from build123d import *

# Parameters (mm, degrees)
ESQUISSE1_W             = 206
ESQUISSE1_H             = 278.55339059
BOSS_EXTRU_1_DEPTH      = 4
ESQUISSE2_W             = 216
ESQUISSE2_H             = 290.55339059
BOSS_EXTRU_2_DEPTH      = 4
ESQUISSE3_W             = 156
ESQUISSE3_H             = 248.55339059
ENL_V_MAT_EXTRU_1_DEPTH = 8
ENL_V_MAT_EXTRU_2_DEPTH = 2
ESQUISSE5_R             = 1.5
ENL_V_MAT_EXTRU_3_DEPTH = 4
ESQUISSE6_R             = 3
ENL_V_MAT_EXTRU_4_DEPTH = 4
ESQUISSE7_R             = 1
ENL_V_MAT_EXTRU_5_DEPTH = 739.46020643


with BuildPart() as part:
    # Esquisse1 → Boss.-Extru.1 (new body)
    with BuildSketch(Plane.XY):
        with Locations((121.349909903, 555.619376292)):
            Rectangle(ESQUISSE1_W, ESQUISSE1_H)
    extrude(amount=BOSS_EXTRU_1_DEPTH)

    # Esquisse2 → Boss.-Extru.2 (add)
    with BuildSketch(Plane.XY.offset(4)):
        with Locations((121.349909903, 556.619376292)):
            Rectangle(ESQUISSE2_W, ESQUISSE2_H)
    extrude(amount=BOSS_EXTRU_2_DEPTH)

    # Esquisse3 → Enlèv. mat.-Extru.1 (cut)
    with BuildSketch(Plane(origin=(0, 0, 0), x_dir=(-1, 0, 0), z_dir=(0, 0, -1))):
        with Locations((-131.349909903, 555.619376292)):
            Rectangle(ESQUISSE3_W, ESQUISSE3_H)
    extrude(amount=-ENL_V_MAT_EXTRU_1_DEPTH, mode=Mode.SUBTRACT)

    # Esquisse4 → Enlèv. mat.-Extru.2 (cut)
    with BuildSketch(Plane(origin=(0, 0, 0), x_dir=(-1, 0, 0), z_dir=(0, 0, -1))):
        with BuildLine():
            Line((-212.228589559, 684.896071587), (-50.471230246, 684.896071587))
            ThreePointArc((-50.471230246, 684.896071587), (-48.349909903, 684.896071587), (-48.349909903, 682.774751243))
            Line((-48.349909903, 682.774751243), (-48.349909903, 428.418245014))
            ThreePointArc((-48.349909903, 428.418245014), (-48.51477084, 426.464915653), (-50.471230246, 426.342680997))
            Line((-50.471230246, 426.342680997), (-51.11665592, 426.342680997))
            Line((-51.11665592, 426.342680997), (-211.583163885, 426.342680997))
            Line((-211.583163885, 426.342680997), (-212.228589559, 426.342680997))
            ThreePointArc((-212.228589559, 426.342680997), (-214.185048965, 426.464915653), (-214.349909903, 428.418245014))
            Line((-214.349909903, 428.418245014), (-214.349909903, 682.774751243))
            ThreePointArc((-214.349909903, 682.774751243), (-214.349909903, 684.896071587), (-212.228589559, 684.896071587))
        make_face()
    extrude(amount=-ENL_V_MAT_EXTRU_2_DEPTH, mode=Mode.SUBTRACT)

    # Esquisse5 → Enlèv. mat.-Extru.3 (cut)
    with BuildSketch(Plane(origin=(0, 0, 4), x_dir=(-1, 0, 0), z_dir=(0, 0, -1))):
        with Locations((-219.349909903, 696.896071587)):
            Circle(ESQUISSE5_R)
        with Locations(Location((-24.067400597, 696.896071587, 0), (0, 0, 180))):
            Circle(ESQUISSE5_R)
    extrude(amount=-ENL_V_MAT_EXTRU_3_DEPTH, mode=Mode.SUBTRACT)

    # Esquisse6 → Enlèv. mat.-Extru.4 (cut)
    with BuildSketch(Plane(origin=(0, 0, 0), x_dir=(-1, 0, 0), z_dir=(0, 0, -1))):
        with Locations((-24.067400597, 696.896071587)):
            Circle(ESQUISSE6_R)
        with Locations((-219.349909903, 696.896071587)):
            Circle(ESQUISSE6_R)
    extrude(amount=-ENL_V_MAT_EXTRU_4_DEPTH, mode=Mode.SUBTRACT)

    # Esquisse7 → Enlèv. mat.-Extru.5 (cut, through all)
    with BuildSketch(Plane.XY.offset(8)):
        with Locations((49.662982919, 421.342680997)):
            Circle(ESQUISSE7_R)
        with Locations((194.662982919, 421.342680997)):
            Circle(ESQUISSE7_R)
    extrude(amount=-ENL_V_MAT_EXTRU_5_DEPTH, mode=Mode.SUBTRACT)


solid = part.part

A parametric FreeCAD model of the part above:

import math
import FreeCAD as App
import Part
import Sketcher

V = App.Vector


def add_polygon(sketch, points):
    """Adds a closed chain of lines whose ends are joined by coincident constraints."""
    first, n = sketch.GeometryCount, len(points)
    for a, b in zip(points, points[1:] + points[:1]):
        sketch.addGeometry(Part.LineSegment(App.Vector(*a, 0), App.Vector(*b, 0)), False)
    for i in range(n):
        sketch.addConstraint(Sketcher.Constraint("Coincident", first + i, 2, first + (i + 1) % n, 1))

doc = App.newDocument("Part")
body = doc.addObject("PartDesign::Body", "Body")

# Sketch on XY plane
sketch1 = body.newObject("Sketcher::SketchObject", "Sketch")
sketch1.AttachmentSupport = (doc.getObject("XY_Plane"), [""])
sketch1.MapMode = "FlatFace"
add_polygon(sketch1, [(18, 695), (18, 416), (224, 416), (224, 695)])  # lines 0-3
sketch1.addConstraint(Sketcher.Constraint("Vertical", 0))
sketch1.addConstraint(Sketcher.Constraint("Horizontal", 1))
sketch1.addConstraint(Sketcher.Constraint("Vertical", 2))
sketch1.addConstraint(Sketcher.Constraint("Horizontal", 3))
sketch1.addConstraint(Sketcher.Constraint("DistanceX", 1, 1, 1, 2, 206.0))
sketch1.addConstraint(Sketcher.Constraint("DistanceY", 0, 2, 0, 1, 278.553391))
sketch1.addConstraint(Sketcher.Constraint("DistanceX", -1, 1, 0, 2, 18.34991))
sketch1.addConstraint(Sketcher.Constraint("DistanceY", -1, 1, 0, 2, 416.342681))
pad1 = body.newObject("PartDesign::Pad", "Pad")
pad1.Profile = sketch1
pad1.Length = 4

# Sketch on XY plane
sketch2 = body.newObject("Sketcher::SketchObject", "Sketch001")
sketch2.AttachmentSupport = (doc.getObject("XY_Plane"), [""])
sketch2.MapMode = "FlatFace"
sketch2.AttachmentOffset = App.Placement(V(0, 0, 4), App.Rotation())
add_polygon(sketch2, [(13, 702), (13, 411), (229, 411), (229, 702)])  # lines 0-3
sketch2.addConstraint(Sketcher.Constraint("Vertical", 0))
sketch2.addConstraint(Sketcher.Constraint("Horizontal", 1))
sketch2.addConstraint(Sketcher.Constraint("Vertical", 2))
sketch2.addConstraint(Sketcher.Constraint("Horizontal", 3))
sketch2.addConstraint(Sketcher.Constraint("DistanceX", 1, 1, 1, 2, 216.0))
sketch2.addConstraint(Sketcher.Constraint("DistanceY", 0, 2, 0, 1, 290.553391))
sketch2.addConstraint(Sketcher.Constraint("DistanceX", -1, 1, 0, 2, 13.34991))
sketch2.addConstraint(Sketcher.Constraint("DistanceY", -1, 1, 0, 2, 411.342681))
pad2 = body.newObject("PartDesign::Pad", "Pad001")
pad2.Profile = sketch2
pad2.Length = 4

# Sketch on XY plane
sketch3 = body.newObject("Sketcher::SketchObject", "Sketch002")
sketch3.AttachmentSupport = (doc.getObject("XY_Plane"), [""])
sketch3.MapMode = "FlatFace"
add_polygon(sketch3, [(209, 680), (209, 431), (53, 431), (53, 680)])  # lines 0-3
sketch3.addConstraint(Sketcher.Constraint("Vertical", 0))
sketch3.addConstraint(Sketcher.Constraint("Horizontal", 1))
sketch3.addConstraint(Sketcher.Constraint("Vertical", 2))
sketch3.addConstraint(Sketcher.Constraint("Horizontal", 3))
sketch3.addConstraint(Sketcher.Constraint("DistanceX", 1, 2, 1, 1, 156.0))
sketch3.addConstraint(Sketcher.Constraint("DistanceY", 0, 2, 0, 1, 248.553391))
sketch3.addConstraint(Sketcher.Constraint("DistanceX", -1, 1, 0, 2, 209.34991))
sketch3.addConstraint(Sketcher.Constraint("DistanceY", -1, 1, 0, 2, 431.342681))
pocket1 = body.newObject("PartDesign::Pocket", "Pocket")
pocket1.Profile = sketch3
pocket1.Length = 8
pocket1.Reversed = True

# Sketch on XY plane
sketch4 = body.newObject("Sketcher::SketchObject", "Sketch003")
sketch4.AttachmentSupport = (doc.getObject("XY_Plane"), [""])
sketch4.MapMode = "FlatFace"
sketch4.addGeometry(Part.LineSegment(V(50.5, 684.9, 0), V(212.2, 684.9, 0)), False)
sketch4.addGeometry(Part.ArcOfCircle(Part.Circle(V(213.3, 683.8, 0), V(0, 0, 1), 1.5), math.radians(-45), math.radians(135)), False)
sketch4.addGeometry(Part.LineSegment(V(214.3, 682.8, 0), V(214.3, 428.4, 0)), False)
sketch4.addGeometry(Part.ArcOfCircle(Part.Circle(V(213.1, 427.5, 0), V(0, 0, 1), 1.5), math.radians(-127), math.radians(36)), False)
sketch4.addGeometry(Part.LineSegment(V(212.2, 426.3, 0), V(50.5, 426.3, 0)), False)
sketch4.addGeometry(Part.ArcOfCircle(Part.Circle(V(49.6, 427.5, 0), V(0, 0, 1), 1.5), math.radians(144), math.radians(307)), False)
sketch4.addGeometry(Part.LineSegment(V(48.3, 428.4, 0), V(48.3, 682.8, 0)), False)
sketch4.addGeometry(Part.ArcOfCircle(Part.Circle(V(49.4, 683.8, 0), V(0, 0, 1), 1.5), math.radians(45), math.radians(225)), False)
sketch4.addConstraint(Sketcher.Constraint("Coincident", 0, 2, 1, 2))
sketch4.addConstraint(Sketcher.Constraint("Coincident", 1, 1, 2, 1))
sketch4.addConstraint(Sketcher.Constraint("Coincident", 2, 2, 3, 2))
sketch4.addConstraint(Sketcher.Constraint("Coincident", 3, 1, 4, 1))
sketch4.addConstraint(Sketcher.Constraint("Coincident", 4, 2, 5, 2))
sketch4.addConstraint(Sketcher.Constraint("Coincident", 5, 1, 6, 1))
sketch4.addConstraint(Sketcher.Constraint("Coincident", 6, 2, 7, 2))
sketch4.addConstraint(Sketcher.Constraint("Coincident", 7, 1, 0, 1))
sketch4.addConstraint(Sketcher.Constraint("Horizontal", 0))
sketch4.addConstraint(Sketcher.Constraint("Vertical", 2))
sketch4.addConstraint(Sketcher.Constraint("Horizontal", 4))
sketch4.addConstraint(Sketcher.Constraint("Vertical", 6))
sketch4.addConstraint(Sketcher.Constraint("Equal", 1, 3))
sketch4.addConstraint(Sketcher.Constraint("Equal", 3, 5))
sketch4.addConstraint(Sketcher.Constraint("Equal", 5, 7))
sketch4.addConstraint(Sketcher.Constraint("Horizontal", 3, 3, 5, 3))
sketch4.addConstraint(Sketcher.Constraint("Horizontal", 1, 3, 7, 3))
sketch4.addConstraint(Sketcher.Constraint("Horizontal", 2, 2, 5, 1))
sketch4.addConstraint(Sketcher.Constraint("Horizontal", 1, 1, 6, 2))
sketch4.addConstraint(Sketcher.Constraint("Vertical", 0, 2, 3, 1))
sketch4.addConstraint(Sketcher.Constraint("Radius", 1, 1.5))
sketch4.addConstraint(Sketcher.Constraint("DistanceX", 5, 1, 2, 2, 166.0))
sketch4.addConstraint(Sketcher.Constraint("DistanceX", 0, 1, 0, 2, 161.757359))
sketch4.addConstraint(Sketcher.Constraint("DistanceY", 2, 2, 2, 1, 254.356506))
sketch4.addConstraint(Sketcher.Constraint("DistanceX", -1, 1, 1, 3, 213.28925))
sketch4.addConstraint(Sketcher.Constraint("DistanceY", -1, 1, 1, 3, 683.835411))
sketch4.addConstraint(Sketcher.Constraint("DistanceX", -1, 1, 7, 3, 49.41057))
sketch4.addConstraint(Sketcher.Constraint("DistanceY", -1, 1, 3, 1, 426.342681))
pocket2 = body.newObject("PartDesign::Pocket", "Pocket001")
pocket2.Profile = sketch4
pocket2.Length = 2
pocket2.Reversed = True

# Sketch on XY plane
sketch5 = body.newObject("Sketcher::SketchObject", "Sketch004")
sketch5.AttachmentSupport = (doc.getObject("XY_Plane"), [""])
sketch5.MapMode = "FlatFace"
sketch5.AttachmentOffset = App.Placement(V(0, 0, 4), App.Rotation())
sketch5.addGeometry(Part.Circle(V(219.3, 696.9, 0), V(0, 0, 1), 1.5), False)
sketch5.addGeometry(Part.Circle(V(24.1, 696.9, 0), V(0, 0, 1), 1.5), False)
sketch5.addConstraint(Sketcher.Constraint("Equal", 0, 1))
sketch5.addConstraint(Sketcher.Constraint("Horizontal", 0, 3, 1, 3))
sketch5.addConstraint(Sketcher.Constraint("Diameter", 0, 3.0))
sketch5.addConstraint(Sketcher.Constraint("DistanceX", -1, 1, 1, 3, 24.067401))
sketch5.addConstraint(Sketcher.Constraint("DistanceX", -1, 1, 0, 3, 219.34991))
sketch5.addConstraint(Sketcher.Constraint("DistanceY", -1, 1, 0, 3, 696.896072))
pocket3 = body.newObject("PartDesign::Pocket", "Pocket002")
pocket3.Profile = sketch5
pocket3.Length = 4
pocket3.Reversed = True

# Sketch on XY plane
sketch6 = body.newObject("Sketcher::SketchObject", "Sketch005")
sketch6.AttachmentSupport = (doc.getObject("XY_Plane"), [""])
sketch6.MapMode = "FlatFace"
sketch6.addGeometry(Part.Circle(V(24.1, 696.9, 0), V(0, 0, 1), 3), False)
sketch6.addGeometry(Part.Circle(V(219.3, 696.9, 0), V(0, 0, 1), 3), False)
sketch6.addConstraint(Sketcher.Constraint("Equal", 0, 1))
sketch6.addConstraint(Sketcher.Constraint("Horizontal", 0, 3, 1, 3))
sketch6.addConstraint(Sketcher.Constraint("Diameter", 0, 6.0))
sketch6.addConstraint(Sketcher.Constraint("DistanceX", -1, 1, 0, 3, 24.067401))
sketch6.addConstraint(Sketcher.Constraint("DistanceY", -1, 1, 0, 3, 696.896072))
sketch6.addConstraint(Sketcher.Constraint("DistanceX", -1, 1, 1, 3, 219.34991))
pocket4 = body.newObject("PartDesign::Pocket", "Pocket003")
pocket4.Profile = sketch6
pocket4.Length = 4
pocket4.Reversed = True

# Sketch on XY plane
sketch7 = body.newObject("Sketcher::SketchObject", "Sketch006")
sketch7.AttachmentSupport = (doc.getObject("XY_Plane"), [""])
sketch7.MapMode = "FlatFace"
sketch7.AttachmentOffset = App.Placement(V(0, 0, 8), App.Rotation())
sketch7.addGeometry(Part.Circle(V(49.7, 421.3, 0), V(0, 0, 1), 1), False)
sketch7.addGeometry(Part.Circle(V(194.7, 421.3, 0), V(0, 0, 1), 1), False)
sketch7.addConstraint(Sketcher.Constraint("Equal", 0, 1))
sketch7.addConstraint(Sketcher.Constraint("Horizontal", 0, 3, 1, 3))
sketch7.addConstraint(Sketcher.Constraint("Diameter", 0, 2.0))
sketch7.addConstraint(Sketcher.Constraint("DistanceX", 0, 3, 1, 3, 145.0))
sketch7.addConstraint(Sketcher.Constraint("DistanceY", -1, 1, 0, 3, 421.342681))
sketch7.addConstraint(Sketcher.Constraint("DistanceX", -1, 1, 0, 3, 49.662983))
pocket5 = body.newObject("PartDesign::Pocket", "Pocket004")
pocket5.Profile = sketch7
pocket5.Type = "ThroughAll"

doc.recompute()
